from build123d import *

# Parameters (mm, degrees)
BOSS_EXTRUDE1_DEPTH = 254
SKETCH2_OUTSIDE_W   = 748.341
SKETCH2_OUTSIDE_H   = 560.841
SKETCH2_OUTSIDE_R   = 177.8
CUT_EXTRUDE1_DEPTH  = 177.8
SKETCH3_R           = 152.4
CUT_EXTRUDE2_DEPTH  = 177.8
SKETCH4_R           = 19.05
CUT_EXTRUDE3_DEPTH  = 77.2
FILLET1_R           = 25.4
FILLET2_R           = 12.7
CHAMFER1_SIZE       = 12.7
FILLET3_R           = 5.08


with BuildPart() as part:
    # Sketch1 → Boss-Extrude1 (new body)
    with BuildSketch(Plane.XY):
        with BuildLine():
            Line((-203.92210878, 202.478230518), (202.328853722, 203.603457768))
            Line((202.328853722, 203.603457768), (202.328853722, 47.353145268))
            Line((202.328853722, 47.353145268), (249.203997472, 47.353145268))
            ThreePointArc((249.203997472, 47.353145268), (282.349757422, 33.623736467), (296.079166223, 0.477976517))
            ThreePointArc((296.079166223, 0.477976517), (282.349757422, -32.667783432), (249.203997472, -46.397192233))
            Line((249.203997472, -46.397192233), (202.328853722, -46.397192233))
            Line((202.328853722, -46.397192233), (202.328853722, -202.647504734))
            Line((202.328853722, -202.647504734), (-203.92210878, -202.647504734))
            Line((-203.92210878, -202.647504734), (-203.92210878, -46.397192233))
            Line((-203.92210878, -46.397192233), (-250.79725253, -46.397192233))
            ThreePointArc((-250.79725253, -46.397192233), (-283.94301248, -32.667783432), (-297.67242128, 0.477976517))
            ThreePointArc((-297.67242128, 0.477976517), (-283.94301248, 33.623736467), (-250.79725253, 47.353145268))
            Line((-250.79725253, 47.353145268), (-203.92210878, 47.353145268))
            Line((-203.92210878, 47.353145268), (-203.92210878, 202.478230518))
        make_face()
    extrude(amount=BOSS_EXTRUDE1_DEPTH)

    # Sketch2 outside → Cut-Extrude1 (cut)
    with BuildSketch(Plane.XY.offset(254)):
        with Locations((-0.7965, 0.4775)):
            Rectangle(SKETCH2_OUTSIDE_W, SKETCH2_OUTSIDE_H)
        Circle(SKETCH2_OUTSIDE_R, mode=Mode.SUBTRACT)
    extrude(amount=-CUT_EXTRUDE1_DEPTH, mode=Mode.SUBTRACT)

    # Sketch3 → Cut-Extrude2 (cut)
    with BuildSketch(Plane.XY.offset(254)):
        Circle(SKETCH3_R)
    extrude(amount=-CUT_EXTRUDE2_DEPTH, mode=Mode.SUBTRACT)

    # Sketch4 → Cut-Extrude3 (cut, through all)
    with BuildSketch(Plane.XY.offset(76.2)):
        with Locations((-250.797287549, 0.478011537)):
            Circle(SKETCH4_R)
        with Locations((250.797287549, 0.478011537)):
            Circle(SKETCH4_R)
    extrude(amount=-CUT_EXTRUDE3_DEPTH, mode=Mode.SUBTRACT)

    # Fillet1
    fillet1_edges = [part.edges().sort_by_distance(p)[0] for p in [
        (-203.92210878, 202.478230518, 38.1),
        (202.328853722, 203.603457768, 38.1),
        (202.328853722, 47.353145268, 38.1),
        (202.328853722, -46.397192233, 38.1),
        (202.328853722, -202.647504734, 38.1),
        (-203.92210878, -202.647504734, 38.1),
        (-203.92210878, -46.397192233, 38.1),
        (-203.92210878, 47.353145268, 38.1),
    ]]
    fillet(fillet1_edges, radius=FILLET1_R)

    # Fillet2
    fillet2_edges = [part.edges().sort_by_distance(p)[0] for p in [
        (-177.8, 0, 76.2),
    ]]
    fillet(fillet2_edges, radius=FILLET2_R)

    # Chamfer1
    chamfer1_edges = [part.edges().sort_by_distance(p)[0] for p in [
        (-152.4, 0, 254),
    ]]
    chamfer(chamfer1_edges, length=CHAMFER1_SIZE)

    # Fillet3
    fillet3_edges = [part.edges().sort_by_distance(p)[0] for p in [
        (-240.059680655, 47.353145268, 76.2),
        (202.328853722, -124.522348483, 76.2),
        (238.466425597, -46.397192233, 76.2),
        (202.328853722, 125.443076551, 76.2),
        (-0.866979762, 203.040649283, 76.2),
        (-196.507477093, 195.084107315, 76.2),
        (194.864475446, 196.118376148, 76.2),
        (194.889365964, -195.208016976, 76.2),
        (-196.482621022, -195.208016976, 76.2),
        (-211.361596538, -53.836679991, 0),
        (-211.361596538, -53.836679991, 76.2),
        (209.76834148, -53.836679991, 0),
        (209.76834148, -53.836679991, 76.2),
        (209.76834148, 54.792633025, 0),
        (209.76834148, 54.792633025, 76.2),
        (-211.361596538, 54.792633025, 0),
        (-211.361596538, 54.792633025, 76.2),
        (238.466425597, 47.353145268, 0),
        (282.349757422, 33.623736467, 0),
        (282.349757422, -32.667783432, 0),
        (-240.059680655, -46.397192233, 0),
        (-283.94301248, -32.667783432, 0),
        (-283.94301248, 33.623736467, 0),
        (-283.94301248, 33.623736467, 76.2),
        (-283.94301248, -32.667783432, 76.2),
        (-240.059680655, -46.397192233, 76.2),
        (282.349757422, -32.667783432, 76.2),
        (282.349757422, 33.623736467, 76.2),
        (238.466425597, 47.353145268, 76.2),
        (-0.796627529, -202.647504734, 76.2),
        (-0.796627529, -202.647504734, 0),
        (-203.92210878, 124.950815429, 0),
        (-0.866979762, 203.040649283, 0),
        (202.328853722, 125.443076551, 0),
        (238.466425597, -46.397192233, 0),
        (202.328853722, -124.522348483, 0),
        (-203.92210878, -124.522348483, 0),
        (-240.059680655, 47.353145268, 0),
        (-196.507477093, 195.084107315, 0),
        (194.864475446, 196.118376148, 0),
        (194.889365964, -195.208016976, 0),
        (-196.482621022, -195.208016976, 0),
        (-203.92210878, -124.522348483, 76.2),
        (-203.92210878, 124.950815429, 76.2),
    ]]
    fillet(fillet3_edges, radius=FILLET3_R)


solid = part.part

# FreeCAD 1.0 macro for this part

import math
import FreeCAD as App
import Part
import Sketcher
from FreeCAD import Vector
Q = App.Units.Quantity


def edges_at(feature, points):
    """Names of the edges that pass closest to the given points."""
    edges = feature.Shape.Edges
    near = lambda p: min(range(len(edges)), key=lambda i: edges[i].distToShape(Part.Vertex(*p))[0])
    return sorted({f"Edge{near(p) + 1}" for p in points})


def add_polygon(sketch, points):
    """Adds a closed chain of lines whose ends are joined by coincident constraints."""
    first, n = sketch.GeometryCount, len(points)
    for a, b in zip(points, points[1:] + points[:1]):
        sketch.addGeometry(Part.LineSegment(App.Vector(*a, 0), App.Vector(*b, 0)), False)
    for i in range(n):
        sketch.addConstraint(Sketcher.Constraint("Coincident", first + i, 2, first + (i + 1) % n, 1))

doc = App.newDocument("Part")
params = doc.addObject("Spreadsheet::Sheet", "Params")
for row, (alias, value) in enumerate([
    ("pad1_length", "10 in"),
    ("sketch2_diameter", "14 in"),
    ("pocket1_length", "7 in"),
    ("sketch3_diameter", "12 in"),
    ("pocket2_length", "7 in"),
    ("sketch4_diameter", "1.5 in"),
    ("fillet_radius", "1 in"),
    ("fillet2_radius", "0.5 in"),
    ("chamfer_size", "0.5 in"),
    ("fillet3_radius", "0.2 in"),
], start=1):
    params.set(f"A{row}", alias)
    params.set(f"B{row}", "=" + value)
    params.setAlias(f"B{row}", alias)

body = doc.addObject("PartDesign::Body", "Body")

# Sketch on XY plane
sketch1 = body.newObject("Sketcher::SketchObject", "Sketch")
sketch1.AttachmentSupport = (doc.getObject("XY_Plane"), [""])
sketch1.MapMode = "FlatFace"
sketch1.addGeometry([
    Part.LineSegment(Vector(202.328854, 203.603458, 0), Vector(-203.922109, 202.478231, 0)),  # 0
    Part.LineSegment(Vector(-203.922109, 202.478231, 0), Vector(-203.922109, 47.353145, 0)),  # 1
    Part.LineSegment(Vector(-203.922109, 47.353145, 0), Vector(-250.797253, 47.353145, 0)),  # 2
    Part.ArcOfCircle(Part.Circle(Vector(-250.797288, 0.478012, 0), Vector(0, 0, 1), 46.875134), math.radians(89.999957), math.radians(180.000043)),  # 3
    Part.ArcOfCircle(Part.Circle(Vector(-250.797288, 0.477941, 0), Vector(0, 0, 1), 46.875134), math.radians(179.999957), math.radians(270.000043)),  # 4
    Part.LineSegment(Vector(-250.797253, -46.397192, 0), Vector(-203.922109, -46.397192, 0)),  # 5
    Part.LineSegment(Vector(-203.922109, -46.397192, 0), Vector(-203.922109, -202.647505, 0)),  # 6
    Part.LineSegment(Vector(-203.922109, -202.647505, 0), Vector(202.328854, -202.647505, 0)),  # 7
    Part.LineSegment(Vector(202.328854, -202.647505, 0), Vector(202.328854, -46.397192, 0)),  # 8
    Part.LineSegment(Vector(202.328854, -46.397192, 0), Vector(249.203997, -46.397192, 0)),  # 9
    Part.ArcOfCircle(Part.Circle(Vector(249.204032, 0.477941, 0), Vector(0, 0, 1), 46.875134), math.radians(-90.000043), math.radians(0.000043)),  # 10
    Part.ArcOfCircle(Part.Circle(Vector(249.204032, 0.478012, 0), Vector(0, 0, 1), 46.875134), math.radians(-0.000043), math.radians(90.000043)),  # 11
    Part.LineSegment(Vector(249.203997, 47.353145, 0), Vector(202.328854, 47.353145, 0)),  # 12
    Part.LineSegment(Vector(202.328854, 47.353145, 0), Vector(202.328854, 203.603458, 0)),  # 13
], False)
sketch1.addConstraint([
    Sketcher.Constraint("Coincident", 0, 2, 1, 1),
    Sketcher.Constraint("Coincident", 1, 2, 2, 1),
    Sketcher.Constraint("Coincident", 2, 2, 3, 1),
    Sketcher.Constraint("Coincident", 3, 2, 4, 1),
    Sketcher.Constraint("Coincident", 4, 2, 5, 1),
    Sketcher.Constraint("Coincident", 5, 2, 6, 1),
    Sketcher.Constraint("Coincident", 6, 2, 7, 1),
    Sketcher.Constraint("Coincident", 7, 2, 8, 1),
    Sketcher.Constraint("Coincident", 8, 2, 9, 1),
    Sketcher.Constraint("Coincident", 9, 2, 10, 1),
    Sketcher.Constraint("Coincident", 10, 2, 11, 1),
    Sketcher.Constraint("Coincident", 11, 2, 12, 1),
    Sketcher.Constraint("Coincident", 12, 2, 13, 1),
    Sketcher.Constraint("Coincident", 13, 2, 0, 1),
    Sketcher.Constraint("Vertical", 1),
    Sketcher.Constraint("Horizontal", 2),
    Sketcher.Constraint("Horizontal", 5),
    Sketcher.Constraint("Vertical", 6),
    Sketcher.Constraint("Horizontal", 7),
    Sketcher.Constraint("Vertical", 8),
    Sketcher.Constraint("Horizontal", 9),
    Sketcher.Constraint("Horizontal", 12),
    Sketcher.Constraint("Vertical", 13),
    Sketcher.Constraint("Radius", 3, Q("46.875134 mm")),
    Sketcher.Constraint("Radius", 4, Q("46.875134 mm")),
    Sketcher.Constraint("Radius", 10, Q("46.875134 mm")),
    Sketcher.Constraint("Radius", 11, Q("46.875134 mm")),
    Sketcher.Constraint("Distance", 0, Q("406.252521 mm")),
    Sketcher.Constraint("DistanceX", 2, 2, 2, 1, Q("46.875144 mm")),
    Sketcher.Constraint("DistanceX", 5, 1, 5, 2, Q("46.875144 mm")),
    Sketcher.Constraint("DistanceX", 7, 1, 7, 2, Q("406.250963 mm")),
    Sketcher.Constraint("DistanceX", 9, 1, 9, 2, Q("46.875144 mm")),
    Sketcher.Constraint("DistanceX", 12, 2, 12, 1, Q("46.875144 mm")),
    Sketcher.Constraint("DistanceY", 1, 2, 1, 1, Q("155.125085 mm")),
    Sketcher.Constraint("DistanceY", 6, 2, 6, 1, Q("156.250313 mm")),
    Sketcher.Constraint("DistanceY", 8, 1, 8, 2, Q("156.250313 mm")),
    Sketcher.Constraint("DistanceY", 13, 1, 13, 2, Q("156.250313 mm")),
    Sketcher.Constraint("DistanceY", -1, 1, 3, 3, Q("0.478012 mm")),
    Sketcher.Constraint("DistanceY", -1, 1, 4, 3, Q("0.477941 mm")),
    Sketcher.Constraint("DistanceY", -1, 1, 11, 3, Q("0.478012 mm")),
    Sketcher.Constraint("DistanceX", 0, 2, -1, 1, Q("203.922109 mm")),
    Sketcher.Constraint("DistanceX", 3, 2, -1, 1, Q("297.672421 mm")),
    Sketcher.Constraint("DistanceX", 5, 2, -1, 1, Q("203.922109 mm")),
    Sketcher.Constraint("DistanceX", 4, 3, 10, 3, Q("500.00132 mm")),
    Sketcher.Constraint("DistanceY", 3, 2, 2, 2, Q("46.875169 mm")),
    Sketcher.Constraint("DistanceY", 9, 2, 10, 2, Q("46.875169 mm")),
])
pad1 = body.newObject("PartDesign::Pad", "Pad")
pad1.Profile = sketch1
pad1.setExpression("Length", "Params.pad1_length")

# Sketch on XY plane
sketch2 = body.newObject("Sketcher::SketchObject", "Sketch001")
sketch2.AttachmentSupport = (doc.getObject("XY_Plane"), [""])
sketch2.MapMode = "FlatFace"
sketch2.AttachmentOffset = App.Placement(Vector(0, 0, 10 * 25.4), App.Rotation())
add_polygon(sketch2, [(-374.967, 280.898), (-374.967, -279.943), (373.374, -279.943), (373.374, 280.898)])  # lines 0-3
sketch2.addGeometry(Part.Circle(Vector(0, 0, 0), Vector(0, 0, 1), 177.8), False)  # 4
sketch2.addConstraint([
    Sketcher.Constraint("Vertical", 0),
    Sketcher.Constraint("Horizontal", 1),
    Sketcher.Constraint("Vertical", 2),
    Sketcher.Constraint("Horizontal", 3),
    Sketcher.Constraint("Coincident", 4, 3, -1, 1),
    Sketcher.Constraint("Diameter", 4, Q("14 in")),
    Sketcher.Constraint("DistanceX", 1, 1, 1, 2, Q("748.341 mm")),
    Sketcher.Constraint("DistanceY", 0, 2, 0, 1, Q("560.841 mm")),
    Sketcher.Constraint("DistanceX", 0, 2, -1, 1, Q("374.967 mm")),
    Sketcher.Constraint("DistanceY", 0, 2, -1, 1, Q("279.943 mm")),
])
sketch2.setExpression("Constraints[9]", "Params.sketch2_diameter")
pocket1 = body.newObject("PartDesign::Pocket", "Pocket")
pocket1.Profile = sketch2
pocket1.setExpression("Length", "Params.pocket1_length")

# Sketch on XY plane
sketch3 = body.newObject("Sketcher::SketchObject", "Sketch002")
sketch3.AttachmentSupport = (doc.getObject("XY_Plane"), [""])
sketch3.MapMode = "FlatFace"
sketch3.AttachmentOffset = App.Placement(Vector(0, 0, 10 * 25.4), App.Rotation())
sketch3.addGeometry(Part.Circle(Vector(0, 0, 0), Vector(0, 0, 1), 152.4), False)
sketch3.addConstraint([
    Sketcher.Constraint("Coincident", 0, 3, -1, 1),
    Sketcher.Constraint("Diameter", 0, Q("12 in")),
])
sketch3.setExpression("Constraints[1]", "Params.sketch3_diameter")
pocket2 = body.newObject("PartDesign::Pocket", "Pocket001")
pocket2.Profile = sketch3
pocket2.setExpression("Length", "Params.pocket2_length")

# Sketch on XY plane
sketch4 = body.newObject("Sketcher::SketchObject", "Sketch003")
sketch4.AttachmentSupport = (doc.getObject("XY_Plane"), [""])
sketch4.MapMode = "FlatFace"
sketch4.AttachmentOffset = App.Placement(Vector(0, 0, 3 * 25.4), App.Rotation())
sketch4.addGeometry([
    Part.Circle(Vector(-250.797288, 0.478012, 0), Vector(0, 0, 1), 19.05),
    Part.Circle(Vector(250.797288, 0.478012, 0), Vector(0, 0, 1), 19.05),
], False)
sketch4.addConstraint([
    Sketcher.Constraint("Equal", 0, 1),
    Sketcher.Constraint("Symmetric", 0, 3, 1, 3, -2),
    Sketcher.Constraint("Diameter", 0, Q("1.5 in")),
    Sketcher.Constraint("DistanceY", -1, 1, 0, 3, Q("0.478012 mm")),
    Sketcher.Constraint("DistanceX", 0, 3, -1, 1, Q("250.797288 mm")),
])
sketch4.setExpression("Constraints[2]", "Params.sketch4_diameter")
pocket3 = body.newObject("PartDesign::Pocket", "Pocket002")
pocket3.Profile = sketch4
pocket3.Type = "ThroughAll"
doc.recompute()

fillet = body.newObject("PartDesign::Fillet", "Fillet")
fillet.Base = (pocket3, edges_at(pocket3, [
    (-203.922, 202.478, 38.1),
    (202.329, 203.603, 38.1),
    (202.329, 47.353, 38.1),
    (202.329, -46.397, 38.1),
    (202.329, -202.648, 38.1),
    (-203.922, -202.648, 38.1),
    (-203.922, -46.397, 38.1),
    (-203.922, 47.353, 38.1),
]))
fillet.setExpression("Radius", "Params.fillet_radius")
doc.recompute()

fillet2 = body.newObject("PartDesign::Fillet", "Fillet001")
fillet2.Base = (fillet, edges_at(fillet, [(-177.8, 0, 76.2)]))
fillet2.setExpression("Radius", "Params.fillet2_radius")
doc.recompute()

chamfer = body.newObject("PartDesign::Chamfer", "Chamfer")
chamfer.Base = (fillet2, edges_at(fillet2, [(-152.4, 0, 254)]))
chamfer.setExpression("Size", "Params.chamfer_size")
doc.recompute()

fillet3 = body.newObject("PartDesign::Fillet", "Fillet002")
fillet3.Base = (chamfer, edges_at(chamfer, [
    (-240.06, 47.353, 76.2),
    (202.329, -124.522, 76.2),
    (238.466, -46.397, 76.2),
    (202.329, 125.443, 76.2),
    (-0.867, 203.041, 76.2),
    (-196.507, 195.084, 76.2),
    (194.864, 196.118, 76.2),
    (194.889, -195.208, 76.2),
    (-196.483, -195.208, 76.2),
    (-211.362, -53.837, 0),
    (-211.362, -53.837, 76.2),
    (209.768, -53.837, 0),
    (209.768, -53.837, 76.2),
    (209.768, 54.793, 0),
    (209.768, 54.793, 76.2),
    (-211.362, 54.793, 0),
    (-211.362, 54.793, 76.2),
    (238.466, 47.353, 0),
    (282.35, 33.624, 0),
    (282.35, -32.668, 0),
    (-240.06, -46.397, 0),
    (-283.943, -32.668, 0),
    (-283.943, 33.624, 0),
    (-283.943, 33.624, 76.2),
    (-283.943, -32.668, 76.2),
    (-240.06, -46.397, 76.2),
    (282.35, -32.668, 76.2),
    (282.35, 33.624, 76.2),
    (238.466, 47.353, 76.2),
    (-0.797, -202.648, 76.2),
    (-0.797, -202.648, 0),
    (-203.922, 124.951, 0),
    (-0.867, 203.041, 0),
    (202.329, 125.443, 0),
    (238.466, -46.397, 0),
    (202.329, -124.522, 0),
    (-203.922, -124.522, 0),
    (-240.06, 47.353, 0),
    (-196.507, 195.084, 0),
    (194.864, 196.118, 0),
    (194.889, -195.208, 0),
    (-196.483, -195.208, 0),
    (-203.922, -124.522, 76.2),
    (-203.922, 124.951, 76.2),
]))
fillet3.setExpression("Radius", "Params.fillet3_radius")

doc.recompute()
